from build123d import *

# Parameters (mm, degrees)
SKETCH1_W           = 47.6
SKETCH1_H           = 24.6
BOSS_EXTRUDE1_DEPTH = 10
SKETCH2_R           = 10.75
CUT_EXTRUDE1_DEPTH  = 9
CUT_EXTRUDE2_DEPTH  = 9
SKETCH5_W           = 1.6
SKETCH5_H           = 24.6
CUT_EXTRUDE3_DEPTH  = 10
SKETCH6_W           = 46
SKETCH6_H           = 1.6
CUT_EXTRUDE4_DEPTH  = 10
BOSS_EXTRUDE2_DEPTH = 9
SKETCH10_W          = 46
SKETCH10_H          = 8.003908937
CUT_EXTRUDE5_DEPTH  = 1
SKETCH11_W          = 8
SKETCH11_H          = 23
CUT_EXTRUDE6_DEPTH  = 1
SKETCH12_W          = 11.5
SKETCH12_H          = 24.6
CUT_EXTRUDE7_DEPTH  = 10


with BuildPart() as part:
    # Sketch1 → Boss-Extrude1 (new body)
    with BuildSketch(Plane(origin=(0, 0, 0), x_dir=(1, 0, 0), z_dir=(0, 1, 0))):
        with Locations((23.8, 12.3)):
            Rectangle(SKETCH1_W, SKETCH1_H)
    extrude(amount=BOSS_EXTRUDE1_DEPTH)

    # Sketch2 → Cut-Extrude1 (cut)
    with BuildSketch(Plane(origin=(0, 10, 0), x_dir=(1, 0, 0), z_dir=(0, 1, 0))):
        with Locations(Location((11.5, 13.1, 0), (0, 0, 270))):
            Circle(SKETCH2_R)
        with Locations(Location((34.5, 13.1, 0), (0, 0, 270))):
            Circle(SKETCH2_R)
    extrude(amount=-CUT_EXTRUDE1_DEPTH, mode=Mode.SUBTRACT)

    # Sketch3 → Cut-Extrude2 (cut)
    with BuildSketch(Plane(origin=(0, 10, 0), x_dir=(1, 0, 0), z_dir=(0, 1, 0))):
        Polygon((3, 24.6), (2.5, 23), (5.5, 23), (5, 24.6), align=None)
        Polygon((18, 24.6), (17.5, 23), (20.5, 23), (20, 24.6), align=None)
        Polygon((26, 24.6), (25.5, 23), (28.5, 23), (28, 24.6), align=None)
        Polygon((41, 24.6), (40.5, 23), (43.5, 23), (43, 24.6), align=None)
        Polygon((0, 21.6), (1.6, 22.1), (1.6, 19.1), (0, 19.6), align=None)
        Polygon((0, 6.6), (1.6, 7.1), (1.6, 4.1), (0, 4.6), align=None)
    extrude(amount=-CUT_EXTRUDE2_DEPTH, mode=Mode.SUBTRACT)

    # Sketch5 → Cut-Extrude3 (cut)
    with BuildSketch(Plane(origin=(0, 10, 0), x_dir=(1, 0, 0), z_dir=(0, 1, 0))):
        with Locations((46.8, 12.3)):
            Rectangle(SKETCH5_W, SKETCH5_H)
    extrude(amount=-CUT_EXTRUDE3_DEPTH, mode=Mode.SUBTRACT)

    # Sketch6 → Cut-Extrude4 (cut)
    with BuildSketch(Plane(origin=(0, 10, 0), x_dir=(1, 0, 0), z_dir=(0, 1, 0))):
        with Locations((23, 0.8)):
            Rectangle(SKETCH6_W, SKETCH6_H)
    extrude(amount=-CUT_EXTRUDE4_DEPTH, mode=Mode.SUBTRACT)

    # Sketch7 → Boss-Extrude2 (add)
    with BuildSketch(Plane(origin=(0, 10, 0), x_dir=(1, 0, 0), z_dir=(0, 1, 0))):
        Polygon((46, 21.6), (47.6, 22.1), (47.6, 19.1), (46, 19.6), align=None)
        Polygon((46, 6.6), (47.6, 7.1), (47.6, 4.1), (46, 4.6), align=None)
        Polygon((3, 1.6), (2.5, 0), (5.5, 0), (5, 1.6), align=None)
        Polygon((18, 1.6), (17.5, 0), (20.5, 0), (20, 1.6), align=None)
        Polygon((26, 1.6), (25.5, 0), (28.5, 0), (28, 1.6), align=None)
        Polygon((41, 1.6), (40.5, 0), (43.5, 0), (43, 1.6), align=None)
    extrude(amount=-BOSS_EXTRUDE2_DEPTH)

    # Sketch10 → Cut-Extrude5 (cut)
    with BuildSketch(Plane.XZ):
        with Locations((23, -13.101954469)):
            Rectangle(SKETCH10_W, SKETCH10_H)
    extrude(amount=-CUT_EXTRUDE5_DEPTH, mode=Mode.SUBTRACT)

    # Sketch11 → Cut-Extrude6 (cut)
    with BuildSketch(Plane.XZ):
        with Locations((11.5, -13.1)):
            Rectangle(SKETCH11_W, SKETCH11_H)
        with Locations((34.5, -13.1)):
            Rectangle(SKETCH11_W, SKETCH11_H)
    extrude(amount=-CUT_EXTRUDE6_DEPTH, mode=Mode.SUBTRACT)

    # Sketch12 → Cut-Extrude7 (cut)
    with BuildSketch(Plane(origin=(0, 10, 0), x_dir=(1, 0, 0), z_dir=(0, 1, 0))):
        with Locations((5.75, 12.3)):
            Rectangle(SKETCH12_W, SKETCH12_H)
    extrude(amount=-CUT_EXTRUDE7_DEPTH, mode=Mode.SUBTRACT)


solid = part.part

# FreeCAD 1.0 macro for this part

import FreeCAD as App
import Part
import Sketcher
Q = App.Units.Quantity


def add_polygon(sketch, points):
    """Adds a closed chain of lines whose ends are joined by coincident constraints."""
    first, n = sketch.GeometryCount, len(points)
    for a, b in zip(points, points[1:] + points[:1]):
        sketch.addGeometry(Part.LineSegment(App.Vector(*a, 0), App.Vector(*b, 0)), False)
    for i in range(n):
        sketch.addConstraint(Sketcher.Constraint("Coincident", first + i, 2, first + (i + 1) % n, 1))

doc = App.newDocument("Part")
body = doc.addObject("PartDesign::Body", "Body")

sketch1 = body.newObject("Sketcher::SketchObject", "Sketch")
sketch1.AttachmentSupport = (doc.getObject("XZ_Plane"), [""])
sketch1.MapMode = "FlatFace"
add_polygon(sketch1, [(0, -24.6), (0, 0), (47.6, 0), (47.6, -24.6)])
sketch1.addConstraint([
    Sketcher.Constraint("Vertical", 0),
    Sketcher.Constraint("Horizontal", 1),
    Sketcher.Constraint("Vertical", 2),
    Sketcher.Constraint("Horizontal", 3),
    Sketcher.Constraint("Coincident", 0, 2, -1, 1),
    Sketcher.Constraint("DistanceX", 1, 1, 1, 2, Q("47.6 mm")),
    Sketcher.Constraint("DistanceY", 0, 1, 0, 2, Q("24.6 mm")),
])
pad1 = body.newObject("PartDesign::Pad", "Pad")
pad1.Profile = sketch1
pad1.Length = 10
pad1.Reversed = True

sketch2 = body.newObject("Sketcher::SketchObject", "Sketch001")
sketch2.AttachmentSupport = (doc.getObject("XZ_Plane"), [""])
sketch2.MapMode = "FlatFace"
sketch2.AttachmentOffset = App.Placement(App.Vector(0, 0, -10), App.Rotation())
sketch2.addGeometry([
    Part.Circle(App.Vector(11.5, -13.1, 0), App.Vector(0, 0, 1), 10.75),
    Part.Circle(App.Vector(34.5, -13.1, 0), App.Vector(0, 0, 1), 10.75),
], False)
sketch2.addConstraint([
    Sketcher.Constraint("Equal", 0, 1),
    Sketcher.Constraint("Horizontal", 0, 3, 1, 3),
    Sketcher.Constraint("Diameter", 0, Q("21.5 mm")),
    Sketcher.Constraint("DistanceX", 0, 3, 1, 3, Q("23 mm")),
    Sketcher.Constraint("DistanceX", -1, 1, 0, 3, Q("11.5 mm")),
    Sketcher.Constraint("DistanceY", 0, 3, -1, 1, Q("13.1 mm")),
])
pocket1 = body.newObject("PartDesign::Pocket", "Pocket")
pocket1.Profile = sketch2
pocket1.Length = 9
pocket1.Reversed = True

sketch3 = body.newObject("Sketcher::SketchObject", "Sketch002")
sketch3.AttachmentSupport = (doc.getObject("XZ_Plane"), [""])
sketch3.MapMode = "FlatFace"
sketch3.AttachmentOffset = App.Placement(App.Vector(0, 0, -10), App.Rotation())
add_polygon(sketch3, [(3, -24.6), (2.5, -23), (5.5, -23), (5, -24.6)])
add_polygon(sketch3, [(18, -24.6), (17.5, -23), (20.5, -23), (20, -24.6)])
add_polygon(sketch3, [(26, -24.6), (25.5, -23), (28.5, -23), (28, -24.6)])
add_polygon(sketch3, [(41, -24.6), (40.5, -23), (43.5, -23), (43, -24.6)])
add_polygon(sketch3, [(1.6, -22.1), (0, -21.6), (0, -19.6), (1.6, -19.1)])
add_polygon(sketch3, [(1.6, -7.1), (0, -6.6), (0, -4.6), (1.6, -4.1)])
sketch3.addConstraint([
    Sketcher.Constraint("Horizontal", 1),
    Sketcher.Constraint("Horizontal", 3),
    Sketcher.Constraint("Horizontal", 5),
    Sketcher.Constraint("Horizontal", 7),
    Sketcher.Constraint("Horizontal", 9),
    Sketcher.Constraint("Horizontal", 11),
    Sketcher.Constraint("Horizontal", 13),
    Sketcher.Constraint("Horizontal", 15),
    Sketcher.Constraint("Vertical", 17),
    Sketcher.Constraint("Vertical", 19),
    Sketcher.Constraint("Vertical", 21),
    Sketcher.Constraint("Vertical", 23),
    Sketcher.Constraint("PointOnObject", 16, 2, -2),
    Sketcher.Constraint("PointOnObject", 20, 2, -2),
    Sketcher.Constraint("Parallel", 0, 4),
    Sketcher.Constraint("Parallel", 2, 6),
    Sketcher.Constraint("Parallel", 4, 8),
    Sketcher.Constraint("Parallel", 6, 10),
    Sketcher.Constraint("Parallel", 8, 12),
    Sketcher.Constraint("Parallel", 10, 14),
    Sketcher.Constraint("Perpendicular", 14, 16),
    Sketcher.Constraint("Perpendicular", 12, 18),
    Sketcher.Constraint("Parallel", 16, 20),
    Sketcher.Constraint("Parallel", 18, 22),
    Sketcher.Constraint("Horizontal", 1, 2, 4, 2),
    Sketcher.Constraint("Horizontal", 3, 2, 6, 2),
    Sketcher.Constraint("Horizontal", 5, 2, 8, 2),
    Sketcher.Constraint("Horizontal", 7, 2, 10, 2),
    Sketcher.Constraint("Horizontal", 9, 2, 12, 2),
    Sketcher.Constraint("Horizontal", 11, 2, 14, 2),
    Sketcher.Constraint("Vertical", 19, 2, 22, 2),
    Sketcher.Constraint("Equal", 1, 5),
    Sketcher.Constraint("Equal", 5, 9),
    Sketcher.Constraint("Equal", 9, 13),
    Sketcher.Constraint("Equal", 15, 17),
    Sketcher.Constraint("Equal", 13, 19),
    Sketcher.Constraint("Equal", 17, 21),
    Sketcher.Constraint("Equal", 0, 2),
    Sketcher.Constraint("DistanceX", 1, 1, 1, 2, Q("3 mm")),
    Sketcher.Constraint("DistanceX", 3, 2, 3, 1, Q("2 mm")),
    Sketcher.Constraint("DistanceY", 0, 2, -1, 1, Q("23 mm")),
    Sketcher.Constraint("DistanceX", -1, 1, 2, 2, Q("5 mm")),
    Sketcher.Constraint("DistanceX", -1, 1, 6, 2, Q("20 mm")),
    Sketcher.Constraint("DistanceX", -1, 1, 10, 2, Q("28 mm")),
    Sketcher.Constraint("DistanceX", -1, 1, 14, 2, Q("43 mm")),
    Sketcher.Constraint("DistanceY", 3, 2, 16, 2, Q("3 mm")),
    Sketcher.Constraint("DistanceY", 17, 2, 20, 2, Q("13 mm")),
    Sketcher.Constraint("DistanceY", 2, 2, -1, 1, Q("24.6 mm")),
])
pocket2 = body.newObject("PartDesign::Pocket", "Pocket001")
pocket2.Profile = sketch3
pocket2.Length = 9
pocket2.Reversed = True

sketch4 = body.newObject("Sketcher::SketchObject", "Sketch003")
sketch4.AttachmentSupport = (doc.getObject("XZ_Plane"), [""])
sketch4.MapMode = "FlatFace"
sketch4.AttachmentOffset = App.Placement(App.Vector(0, 0, -10), App.Rotation())
add_polygon(sketch4, [(46, -24.6), (46, 0), (47.6, 0), (47.6, -24.6)])
sketch4.addConstraint([
    Sketcher.Constraint("Vertical", 0),
    Sketcher.Constraint("Horizontal", 1),
    Sketcher.Constraint("Vertical", 2),
    Sketcher.Constraint("Horizontal", 3),
    Sketcher.Constraint("PointOnObject", 0, 2, -1),
    Sketcher.Constraint("DistanceX", 1, 1, 1, 2, Q("1.6 mm")),
    Sketcher.Constraint("DistanceY", 0, 1, 0, 2, Q("24.6 mm")),
    Sketcher.Constraint("DistanceX", -1, 1, 0, 2, Q("46 mm")),
])
pocket3 = body.newObject("PartDesign::Pocket", "Pocket002")
pocket3.Profile = sketch4
pocket3.Length = 10
pocket3.Reversed = True

sketch5 = body.newObject("Sketcher::SketchObject", "Sketch004")
sketch5.AttachmentSupport = (doc.getObject("XZ_Plane"), [""])
sketch5.MapMode = "FlatFace"
sketch5.AttachmentOffset = App.Placement(App.Vector(0, 0, -10), App.Rotation())
add_polygon(sketch5, [(0, -1.6), (0, 0), (46, 0), (46, -1.6)])
sketch5.addConstraint([
    Sketcher.Constraint("Vertical", 0),
    Sketcher.Constraint("Horizontal", 1),
    Sketcher.Constraint("Vertical", 2),
    Sketcher.Constraint("Horizontal", 3),
    Sketcher.Constraint("Coincident", 0, 2, -1, 1),
    Sketcher.Constraint("DistanceX", 1, 1, 1, 2, Q("46 mm")),
    Sketcher.Constraint("DistanceY", 0, 1, 0, 2, Q("1.6 mm")),
])
pocket4 = body.newObject("PartDesign::Pocket", "Pocket003")
pocket4.Profile = sketch5
pocket4.Length = 10
pocket4.Reversed = True

sketch6 = body.newObject("Sketcher::SketchObject", "Sketch005")
sketch6.AttachmentSupport = (doc.getObject("XZ_Plane"), [""])
sketch6.MapMode = "FlatFace"
sketch6.AttachmentOffset = App.Placement(App.Vector(0, 0, -10), App.Rotation())
add_polygon(sketch6, [(47.6, -22.1), (46, -21.6), (46, -19.6), (47.6, -19.1)])
add_polygon(sketch6, [(47.6, -7.1), (46, -6.6), (46, -4.6), (47.6, -4.1)])
add_polygon(sketch6, [(3, -1.6), (2.5, 0), (5.5, 0), (5, -1.6)])
add_polygon(sketch6, [(18, -1.6), (17.5, 0), (20.5, 0), (20, -1.6)])
add_polygon(sketch6, [(26, -1.6), (25.5, 0), (28.5, 0), (28, -1.6)])
add_polygon(sketch6, [(41, -1.6), (40.5, 0), (43.5, 0), (43, -1.6)])
sketch6.addConstraint([
    Sketcher.Constraint("Vertical", 1),
    Sketcher.Constraint("Vertical", 3),
    Sketcher.Constraint("Vertical", 5),
    Sketcher.Constraint("Vertical", 7),
    Sketcher.Constraint("Horizontal", 9),
    Sketcher.Constraint("Horizontal", 11),
    Sketcher.Constraint("Horizontal", 13),
    Sketcher.Constraint("Horizontal", 15),
    Sketcher.Constraint("Horizontal", 17),
    Sketcher.Constraint("Horizontal", 19),
    Sketcher.Constraint("Horizontal", 21),
    Sketcher.Constraint("Horizontal", 23),
    Sketcher.Constraint("PointOnObject", 8, 2, -1),
    Sketcher.Constraint("PointOnObject", 12, 2, -1),
    Sketcher.Constraint("PointOnObject", 16, 2, -1),
    Sketcher.Constraint("PointOnObject", 20, 2, -1),
    Sketcher.Constraint("Parallel", 0, 4),
    Sketcher.Constraint("Parallel", 2, 6),
    Sketcher.Constraint("Perpendicular", 6, 8),
    Sketcher.Constraint("Perpendicular", 4, 10),
    Sketcher.Constraint("Parallel", 8, 12),
    Sketcher.Constraint("Parallel", 10, 14),
    Sketcher.Constraint("Parallel", 12, 16),
    Sketcher.Constraint("Parallel", 14, 18),
    Sketcher.Constraint("Parallel", 16, 20),
    Sketcher.Constraint("Parallel", 18, 22),
    Sketcher.Constraint("Horizontal", 11, 2, 14, 2),
    Sketcher.Constraint("Horizontal", 15, 2, 18, 2),
    Sketcher.Constraint("Horizontal", 19, 2, 22, 2),
    Sketcher.Constraint("Vertical", 1, 2, 4, 2),
    Sketcher.Constraint("Vertical", 3, 2, 6, 2),
    Sketcher.Constraint("Equal", 9, 13),
    Sketcher.Constraint("Equal", 13, 17),
    Sketcher.Constraint("Equal", 17, 21),
    Sketcher.Constraint("Equal", 23, 1),
    Sketcher.Constraint("Equal", 21, 3),
    Sketcher.Constraint("Equal", 1, 5),
    Sketcher.Constraint("Equal", 0, 2),
    Sketcher.Constraint("DistanceX", 9, 1, 9, 2, Q("3 mm")),
    Sketcher.Constraint("DistanceX", 11, 2, 11, 1, Q("2 mm")),
    Sketcher.Constraint("DistanceX", -1, 1, 0, 2, Q("46 mm")),
    Sketcher.Constraint("DistanceX", -1, 1, 10, 2, Q("5 mm")),
    Sketcher.Constraint("DistanceX", -1, 1, 14, 2, Q("20 mm")),
    Sketcher.Constraint("DistanceX", -1, 1, 18, 2, Q("28 mm")),
    Sketcher.Constraint("DistanceX", -1, 1, 22, 2, Q("43 mm")),
    Sketcher.Constraint("DistanceY", 1, 2, 4, 2, Q("13 mm")),
    Sketcher.Constraint("DistanceY", 5, 2, 10, 2, Q("3 mm")),
    Sketcher.Constraint("DistanceY", 0, 2, -1, 1, Q("21.6 mm")),
])
pad2 = body.newObject("PartDesign::Pad", "Pad001")
pad2.Profile = sketch6
pad2.Length = 9

sketch7 = body.newObject("Sketcher::SketchObject", "Sketch006")
sketch7.AttachmentSupport = (doc.getObject("XZ_Plane"), [""])
sketch7.MapMode = "FlatFace"
add_polygon(sketch7, [(0, -9.1), (0, -17.103909), (46, -17.103909), (46, -9.1)])
sketch7.addConstraint([
    Sketcher.Constraint("Vertical", 0),
    Sketcher.Constraint("Horizontal", 1),
    Sketcher.Constraint("Vertical", 2),
    Sketcher.Constraint("Horizontal", 3),
    Sketcher.Constraint("PointOnObject", 0, 2, -2),
    Sketcher.Constraint("DistanceX", 1, 1, 1, 2, Q("46 mm")),
    Sketcher.Constraint("DistanceY", 2, 2, -1, 1, Q("9.1 mm")),
    Sketcher.Constraint("DistanceY", 0, 2, 0, 1, Q("8.003909 mm")),
])
pocket5 = body.newObject("PartDesign::Pocket", "Pocket004")
pocket5.Profile = sketch7
pocket5.Length = 1

sketch8 = body.newObject("Sketcher::SketchObject", "Sketch007")
sketch8.AttachmentSupport = (doc.getObject("XZ_Plane"), [""])
sketch8.MapMode = "FlatFace"
add_polygon(sketch8, [(7.5, -1.6), (7.5, -24.6), (15.5, -24.6), (15.5, -1.6)])
add_polygon(sketch8, [(30.5, -1.6), (30.5, -24.6), (38.5, -24.6), (38.5, -1.6)])
sketch8.addConstraint([
    Sketcher.Constraint("Vertical", 0),
    Sketcher.Constraint("Horizontal", 1),
    Sketcher.Constraint("Vertical", 2),
    Sketcher.Constraint("Horizontal", 3),
    Sketcher.Constraint("Vertical", 4),
    Sketcher.Constraint("Horizontal", 5),
    Sketcher.Constraint("Vertical", 6),
    Sketcher.Constraint("Horizontal", 7),
    Sketcher.Constraint("Horizontal", 1, 2, 4, 2),
    Sketcher.Constraint("Horizontal", 3, 2, 6, 2),
    Sketcher.Constraint("Equal", 3, 5),
    Sketcher.Constraint("DistanceX", 1, 1, 1, 2, Q("8 mm")),
    Sketcher.Constraint("DistanceY", 0, 2, 0, 1, Q("23 mm")),
    Sketcher.Constraint("DistanceX", 1, 2, 4, 2, Q("15 mm")),
    Sketcher.Constraint("DistanceX", -1, 1, 0, 2, Q("7.5 mm")),
    Sketcher.Constraint("DistanceY", 0, 2, -1, 1, Q("24.6 mm")),
])
pocket6 = body.newObject("PartDesign::Pocket", "Pocket005")
pocket6.Profile = sketch8
pocket6.Length = 1

sketch9 = body.newObject("Sketcher::SketchObject", "Sketch008")
sketch9.AttachmentSupport = (doc.getObject("XZ_Plane"), [""])
sketch9.MapMode = "FlatFace"
sketch9.AttachmentOffset = App.Placement(App.Vector(0, 0, -10), App.Rotation())
add_polygon(sketch9, [(0, -24.6), (0, 0), (11.5, 0), (11.5, -24.6)])
sketch9.addConstraint([
    Sketcher.Constraint("Vertical", 0),
    Sketcher.Constraint("Horizontal", 1),
    Sketcher.Constraint("Vertical", 2),
    Sketcher.Constraint("Horizontal", 3),
    Sketcher.Constraint("Coincident", 0, 2, -1, 1),
    Sketcher.Constraint("DistanceX", 1, 1, 1, 2, Q("11.5 mm")),
    Sketcher.Constraint("DistanceY", 0, 1, 0, 2, Q("24.6 mm")),
])
pocket7 = body.newObject("PartDesign::Pocket", "Pocket006")
pocket7.Profile = sketch9
pocket7.Length = 10
pocket7.Reversed = True

doc.recompute()
